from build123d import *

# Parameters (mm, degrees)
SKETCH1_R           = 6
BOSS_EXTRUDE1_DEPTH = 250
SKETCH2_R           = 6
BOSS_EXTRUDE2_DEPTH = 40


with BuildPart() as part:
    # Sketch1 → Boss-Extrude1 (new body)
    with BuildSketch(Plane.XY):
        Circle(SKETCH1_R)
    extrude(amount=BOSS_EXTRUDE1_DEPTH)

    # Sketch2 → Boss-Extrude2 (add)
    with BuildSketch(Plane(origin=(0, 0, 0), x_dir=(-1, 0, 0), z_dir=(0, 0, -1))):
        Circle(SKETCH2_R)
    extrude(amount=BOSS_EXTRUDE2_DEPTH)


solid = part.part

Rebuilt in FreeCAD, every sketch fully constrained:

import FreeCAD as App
import Part
import Sketcher
Q = App.Units.Quantity

doc = App.newDocument("Part")
body = doc.addObject("PartDesign::Body", "Body")

# Sketch on XY plane
sketch1 = body.newObject("Sketcher::SketchObject", "Sketch")
sketch1.AttachmentSupport = (doc.getObject("XY_Plane"), [""])
sketch1.MapMode = "FlatFace"
sketch1.addGeometry(Part.Circle(App.Vector(0, 0, 0), App.Vector(0, 0, 1), 6), False)
sketch1.addConstraint(Sketcher.Constraint("Coincident", 0, 3, -1, 1))
sketch1.addConstraint(Sketcher.Constraint("Diameter", 0, Q("12 mm")))
pad1 = body.newObject("PartDesign::Pad", "Pad")
pad1.Profile = sketch1
pad1.Length = 250

# Sketch on XY plane
sketch2 = body.newObject("Sketcher::SketchObject", "Sketch001")
sketch2.AttachmentSupport = (doc.getObject("XY_Plane"), [""])
sketch2.MapMode = "FlatFace"
sketch2.addGeometry(Part.Circle(App.Vector(0, 0, 0), App.Vector(0, 0, 1), 6), False)
sketch2.addConstraint(Sketcher.Constraint("Coincident", 0, 3, -1, 1))
sketch2.addConstraint(Sketcher.Constraint("Diameter", 0, Q("12 mm")))
pad2 = body.newObject("PartDesign::Pad", "Pad001")
pad2.Profile = sketch2
pad2.Length = 40
pad2.Reversed = True

doc.recompute()
